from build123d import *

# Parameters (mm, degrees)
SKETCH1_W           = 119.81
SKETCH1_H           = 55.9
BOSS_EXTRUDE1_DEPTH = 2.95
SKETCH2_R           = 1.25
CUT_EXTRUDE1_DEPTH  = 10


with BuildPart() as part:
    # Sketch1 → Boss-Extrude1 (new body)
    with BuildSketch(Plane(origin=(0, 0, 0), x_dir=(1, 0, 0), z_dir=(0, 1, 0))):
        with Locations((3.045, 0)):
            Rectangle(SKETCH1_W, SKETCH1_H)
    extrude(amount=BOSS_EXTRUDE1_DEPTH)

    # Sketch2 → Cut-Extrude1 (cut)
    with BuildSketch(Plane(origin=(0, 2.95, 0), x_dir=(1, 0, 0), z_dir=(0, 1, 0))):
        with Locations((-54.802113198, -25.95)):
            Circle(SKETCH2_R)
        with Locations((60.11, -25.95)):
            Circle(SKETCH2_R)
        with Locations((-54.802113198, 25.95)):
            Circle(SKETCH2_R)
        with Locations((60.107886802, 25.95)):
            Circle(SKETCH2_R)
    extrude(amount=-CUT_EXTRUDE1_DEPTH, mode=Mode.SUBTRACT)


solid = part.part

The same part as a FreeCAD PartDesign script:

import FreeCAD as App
import Part
import Sketcher

V = App.Vector
Q = App.Units.Quantity


def add_polygon(sketch, points):
    """Adds a closed chain of lines whose ends are joined by coincident constraints."""
    first, n = sketch.GeometryCount, len(points)
    for a, b in zip(points, points[1:] + points[:1]):
        sketch.addGeometry(Part.LineSegment(App.Vector(*a, 0), App.Vector(*b, 0)), False)
    for i in range(n):
        sketch.addConstraint(Sketcher.Constraint("Coincident", first + i, 2, first + (i + 1) % n, 1))

doc = App.newDocument("Part")
body = doc.addObject("PartDesign::Body", "Body")

# Sketch on XZ plane
sketch1 = body.newObject("Sketcher::SketchObject", "Sketch")
sketch1.AttachmentSupport = (doc.getObject("XZ_Plane"), [""])
sketch1.MapMode = "FlatFace"
add_polygon(sketch1, [(-57, -28), (-57, 28), (63, 28), (63, -28)])  # lines 0-3
sketch1.addConstraint(Sketcher.Constraint("Vertical", 0))
sketch1.addConstraint(Sketcher.Constraint("Horizontal", 1))
sketch1.addConstraint(Sketcher.Constraint("Vertical", 2))
sketch1.addConstraint(Sketcher.Constraint("Horizontal", 3))
sketch1.addConstraint(Sketcher.Constraint("DistanceY", 0, 1, 0, 2, Q("55.9 mm")))
sketch1.addConstraint(Sketcher.Constraint("DistanceX", 1, 1, 1, 2, Q("119.81 mm")))
sketch1.addConstraint(Sketcher.Constraint("DistanceX", 0, 2, -1, 1, Q("56.86 mm")))
sketch1.addConstraint(Sketcher.Constraint("DistanceY", -1, 1, 0, 2, Q("27.95 mm")))
pad1 = body.newObject("PartDesign::Pad", "Pad")
pad1.Profile = sketch1
pad1.Length = 2.95
pad1.Reversed = True

# Sketch on XZ plane
sketch2 = body.newObject("Sketcher::SketchObject", "Sketch001")
sketch2.AttachmentSupport = (doc.getObject("XZ_Plane"), [""])
sketch2.MapMode = "FlatFace"
sketch2.AttachmentOffset = App.Placement(V(0, 0, -2.95), App.Rotation())
sketch2.addGeometry(Part.Circle(V(-54.8, 25.9, 0), V(0, 0, 1), 1.2), False)
sketch2.addGeometry(Part.Circle(V(60.1, 25.9, 0), V(0, 0, 1), 1.2), False)
sketch2.addGeometry(Part.Circle(V(-54.8, -25.9, 0), V(0, 0, 1), 1.2), False)
sketch2.addGeometry(Part.Circle(V(60.1, -25.9, 0), V(0, 0, 1), 1.2), False)
sketch2.addConstraint(Sketcher.Constraint("Equal", 0, 1))
sketch2.addConstraint(Sketcher.Constraint("Equal", 1, 2))
sketch2.addConstraint(Sketcher.Constraint("Equal", 2, 3))
sketch2.addConstraint(Sketcher.Constraint("Symmetric", 0, 3, 2, 3, -1))
sketch2.addConstraint(Sketcher.Constraint("Horizontal", 0, 3, 1, 3))
sketch2.addConstraint(Sketcher.Constraint("Horizontal", 2, 3, 3, 3))
sketch2.addConstraint(Sketcher.Constraint("Diameter", 0, Q("2.5 mm")))
sketch2.addConstraint(Sketcher.Constraint("DistanceY", 2, 3, 0, 3, Q("51.9 mm")))
sketch2.addConstraint(Sketcher.Constraint("DistanceX", -1, 1, 1, 3, Q("60.11 mm")))
sketch2.addConstraint(Sketcher.Constraint("DistanceX", 2, 3, 3, 3, Q("114.91 mm")))
sketch2.addConstraint(Sketcher.Constraint("DistanceX", 0, 3, -1, 1, Q("54.802113 mm")))
pocket1 = body.newObject("PartDesign::Pocket", "Pocket")
pocket1.Profile = sketch2
pocket1.Length = 10
pocket1.Reversed = True

doc.recompute()
